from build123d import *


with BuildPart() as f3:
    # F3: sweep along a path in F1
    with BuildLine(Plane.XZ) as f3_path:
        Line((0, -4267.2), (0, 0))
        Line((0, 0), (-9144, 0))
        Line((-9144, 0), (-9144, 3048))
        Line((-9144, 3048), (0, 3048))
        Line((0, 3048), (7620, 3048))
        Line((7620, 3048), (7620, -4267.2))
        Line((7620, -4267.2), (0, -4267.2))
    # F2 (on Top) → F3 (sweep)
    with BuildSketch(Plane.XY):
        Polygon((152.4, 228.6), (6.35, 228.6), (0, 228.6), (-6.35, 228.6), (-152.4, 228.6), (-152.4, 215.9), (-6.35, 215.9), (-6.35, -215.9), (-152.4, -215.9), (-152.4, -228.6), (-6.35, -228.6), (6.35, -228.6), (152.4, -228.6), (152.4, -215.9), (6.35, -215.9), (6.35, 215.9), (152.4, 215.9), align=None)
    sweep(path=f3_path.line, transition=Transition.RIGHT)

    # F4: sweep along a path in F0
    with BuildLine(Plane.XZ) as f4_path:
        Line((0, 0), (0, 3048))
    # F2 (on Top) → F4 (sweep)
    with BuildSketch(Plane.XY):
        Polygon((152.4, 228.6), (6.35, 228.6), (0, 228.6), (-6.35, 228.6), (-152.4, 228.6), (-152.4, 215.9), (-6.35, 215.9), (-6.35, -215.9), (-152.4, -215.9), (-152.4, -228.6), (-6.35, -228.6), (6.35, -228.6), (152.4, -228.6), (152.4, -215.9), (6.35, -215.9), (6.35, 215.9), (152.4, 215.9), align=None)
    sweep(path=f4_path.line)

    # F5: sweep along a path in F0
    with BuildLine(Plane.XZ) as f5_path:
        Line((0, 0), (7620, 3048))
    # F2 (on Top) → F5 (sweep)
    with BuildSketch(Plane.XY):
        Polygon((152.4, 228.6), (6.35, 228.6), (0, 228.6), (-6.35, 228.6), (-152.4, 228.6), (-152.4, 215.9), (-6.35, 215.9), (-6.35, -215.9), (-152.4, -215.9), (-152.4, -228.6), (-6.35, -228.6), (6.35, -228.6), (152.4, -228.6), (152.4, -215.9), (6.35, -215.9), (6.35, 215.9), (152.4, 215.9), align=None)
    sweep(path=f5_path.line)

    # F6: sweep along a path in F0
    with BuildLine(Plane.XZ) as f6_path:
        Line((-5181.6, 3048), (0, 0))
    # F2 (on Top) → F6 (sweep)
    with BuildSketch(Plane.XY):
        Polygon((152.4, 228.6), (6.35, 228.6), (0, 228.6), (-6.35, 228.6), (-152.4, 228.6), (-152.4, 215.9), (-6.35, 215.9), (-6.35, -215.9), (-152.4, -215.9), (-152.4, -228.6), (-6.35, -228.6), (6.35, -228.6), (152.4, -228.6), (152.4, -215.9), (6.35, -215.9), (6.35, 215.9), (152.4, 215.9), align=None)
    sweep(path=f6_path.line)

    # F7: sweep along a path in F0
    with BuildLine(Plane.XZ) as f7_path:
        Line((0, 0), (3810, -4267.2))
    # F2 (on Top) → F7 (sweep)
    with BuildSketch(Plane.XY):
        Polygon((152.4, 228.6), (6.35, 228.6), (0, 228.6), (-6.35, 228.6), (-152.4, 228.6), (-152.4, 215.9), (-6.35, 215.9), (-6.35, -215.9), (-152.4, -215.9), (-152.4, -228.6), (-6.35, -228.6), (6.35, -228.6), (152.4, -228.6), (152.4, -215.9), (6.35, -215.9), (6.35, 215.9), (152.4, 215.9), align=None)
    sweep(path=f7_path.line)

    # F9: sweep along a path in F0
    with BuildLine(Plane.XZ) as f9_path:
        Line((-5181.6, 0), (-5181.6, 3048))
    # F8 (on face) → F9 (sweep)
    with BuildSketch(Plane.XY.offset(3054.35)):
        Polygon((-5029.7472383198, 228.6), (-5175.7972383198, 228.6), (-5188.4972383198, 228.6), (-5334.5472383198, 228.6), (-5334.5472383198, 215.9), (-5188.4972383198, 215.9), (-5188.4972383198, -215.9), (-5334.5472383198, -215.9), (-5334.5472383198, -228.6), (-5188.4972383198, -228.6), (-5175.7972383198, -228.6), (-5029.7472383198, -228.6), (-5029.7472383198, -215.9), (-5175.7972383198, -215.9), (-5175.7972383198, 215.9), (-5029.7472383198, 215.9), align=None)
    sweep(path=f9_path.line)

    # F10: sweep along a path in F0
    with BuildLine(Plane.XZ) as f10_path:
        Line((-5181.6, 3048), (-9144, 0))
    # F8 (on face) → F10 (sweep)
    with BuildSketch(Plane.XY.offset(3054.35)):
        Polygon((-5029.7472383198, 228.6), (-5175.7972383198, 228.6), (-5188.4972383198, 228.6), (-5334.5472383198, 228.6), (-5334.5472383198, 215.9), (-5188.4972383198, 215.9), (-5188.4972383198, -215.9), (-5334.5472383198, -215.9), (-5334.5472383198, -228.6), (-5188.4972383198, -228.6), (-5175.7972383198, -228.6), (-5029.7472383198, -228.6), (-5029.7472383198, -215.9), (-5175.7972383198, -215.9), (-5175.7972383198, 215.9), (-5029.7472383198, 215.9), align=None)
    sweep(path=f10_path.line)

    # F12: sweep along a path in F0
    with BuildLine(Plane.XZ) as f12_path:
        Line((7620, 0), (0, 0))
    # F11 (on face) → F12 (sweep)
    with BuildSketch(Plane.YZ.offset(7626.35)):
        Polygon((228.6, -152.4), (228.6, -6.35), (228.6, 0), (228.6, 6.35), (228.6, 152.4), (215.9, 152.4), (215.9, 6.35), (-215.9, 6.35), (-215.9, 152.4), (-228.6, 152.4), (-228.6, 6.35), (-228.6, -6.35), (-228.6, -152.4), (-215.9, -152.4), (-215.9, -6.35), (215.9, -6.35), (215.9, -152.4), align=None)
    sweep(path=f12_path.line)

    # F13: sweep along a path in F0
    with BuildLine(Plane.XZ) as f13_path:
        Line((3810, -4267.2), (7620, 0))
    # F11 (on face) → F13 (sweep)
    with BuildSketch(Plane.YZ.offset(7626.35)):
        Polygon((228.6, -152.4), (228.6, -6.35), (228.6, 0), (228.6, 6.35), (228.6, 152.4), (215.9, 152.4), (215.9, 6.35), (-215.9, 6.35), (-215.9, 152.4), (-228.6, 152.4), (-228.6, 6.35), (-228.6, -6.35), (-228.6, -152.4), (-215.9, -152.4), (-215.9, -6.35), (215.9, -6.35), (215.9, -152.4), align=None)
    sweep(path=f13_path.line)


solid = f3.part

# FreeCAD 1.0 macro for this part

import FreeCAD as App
import Part
import Sketcher
Q = App.Units.Quantity


def add_polygon(sketch, points):
    """Adds a closed chain of lines whose ends are joined by coincident constraints."""
    first, n = sketch.GeometryCount, len(points)
    for a, b in zip(points, points[1:] + points[:1]):
        sketch.addGeometry(Part.LineSegment(App.Vector(*a, 0), App.Vector(*b, 0)), False)
    for i in range(n):
        sketch.addConstraint(Sketcher.Constraint("Coincident", first + i, 2, first + (i + 1) % n, 1))

doc = App.newDocument("Part")
body = doc.addObject("PartDesign::Body", "Body")

# Sketch on XY plane
sketch1 = body.newObject("Sketcher::SketchObject", "Sketch")
sketch1.AttachmentSupport = (doc.getObject("XY_Plane"), [""])
sketch1.MapMode = "FlatFace"
add_polygon(sketch1, [(152.4, 228.6), (-152.4, 228.6), (-152.4, 215.9), (-6.35, 215.9), (-6.35, -215.9), (-152.4, -215.9), (-152.4, -228.6), (152.4, -228.6), (152.4, -215.9), (6.35, -215.9), (6.35, 215.9), (152.4, 215.9)])  # lines 0-11
sketch1.addConstraint([
    Sketcher.Constraint("Horizontal", 0),
    Sketcher.Constraint("Vertical", 1),
    Sketcher.Constraint("Horizontal", 2),
    Sketcher.Constraint("Vertical", 3),
    Sketcher.Constraint("Horizontal", 4),
    Sketcher.Constraint("Vertical", 5),
    Sketcher.Constraint("Horizontal", 6),
    Sketcher.Constraint("Vertical", 7),
    Sketcher.Constraint("Horizontal", 8),
    Sketcher.Constraint("Vertical", 9),
    Sketcher.Constraint("Horizontal", 10),
    Sketcher.Constraint("Vertical", 11),
    Sketcher.Constraint("Symmetric", 0, 2, 6, 2, -1, 1),
    Sketcher.Constraint("Symmetric", 2, 2, 8, 2, -1, 1),
    Sketcher.Constraint("Symmetric", 4, 2, 10, 2, -1, 1),
    Sketcher.Constraint("Symmetric", 4, 2, 7, 2, -2),
    Sketcher.Constraint("DistanceX", 0, 2, 0, 1, Q("12 in")),
    Sketcher.Constraint("DistanceY", 3, 2, 3, 1, Q("17 in")),
    Sketcher.Constraint("DistanceY", 1, 2, 1, 1, Q("0.5 in")),
    Sketcher.Constraint("DistanceX", 2, 1, 2, 2, Q("5.75 in")),
])

# Sketch on XZ plane
sketch2 = body.newObject("Sketcher::SketchObject", "Sketch001")
sketch2.AttachmentSupport = (doc.getObject("XZ_Plane"), [""])
sketch2.MapMode = "FlatFace"
add_polygon(sketch2, [(0, -4267.2), (0, 0), (-9144, 0), (-9144, 3048), (7620, 3048), (7620, -4267.2)])  # lines 0-5
sketch2.addConstraint([
    Sketcher.Constraint("Vertical", 0),
    Sketcher.Constraint("Horizontal", 1),
    Sketcher.Constraint("Vertical", 2),
    Sketcher.Constraint("Horizontal", 3),
    Sketcher.Constraint("Vertical", 4),
    Sketcher.Constraint("Horizontal", 5),
    Sketcher.Constraint("Coincident", 0, 2, -1, 1),
    Sketcher.Constraint("DistanceX", 1, 2, 1, 1, Q("360 in")),
    Sketcher.Constraint("DistanceX", 3, 1, 3, 2, Q("660 in")),
    Sketcher.Constraint("DistanceY", 0, 1, 0, 2, Q("168 in")),
    Sketcher.Constraint("DistanceY", 2, 1, 2, 2, Q("120 in")),
])
doc.recompute()

additivepipe = body.newObject("PartDesign::AdditivePipe", "AdditivePipe")
additivepipe.Profile = sketch1
additivepipe.Spine = (sketch2, ["Edge1", "Edge2", "Edge3", "Edge4", "Edge5", "Edge6"])
additivepipe.Transition = "Right corner"

# Sketch on XY plane
sketch3 = body.newObject("Sketcher::SketchObject", "Sketch002")
sketch3.AttachmentSupport = (doc.getObject("XY_Plane"), [""])
sketch3.MapMode = "FlatFace"
add_polygon(sketch3, [(152.4, 228.6), (-152.4, 228.6), (-152.4, 215.9), (-6.35, 215.9), (-6.35, -215.9), (-152.4, -215.9), (-152.4, -228.6), (152.4, -228.6), (152.4, -215.9), (6.35, -215.9), (6.35, 215.9), (152.4, 215.9)])  # lines 0-11
sketch3.addConstraint([
    Sketcher.Constraint("Horizontal", 0),
    Sketcher.Constraint("Vertical", 1),
    Sketcher.Constraint("Horizontal", 2),
    Sketcher.Constraint("Vertical", 3),
    Sketcher.Constraint("Horizontal", 4),
    Sketcher.Constraint("Vertical", 5),
    Sketcher.Constraint("Horizontal", 6),
    Sketcher.Constraint("Vertical", 7),
    Sketcher.Constraint("Horizontal", 8),
    Sketcher.Constraint("Vertical", 9),
    Sketcher.Constraint("Horizontal", 10),
    Sketcher.Constraint("Vertical", 11),
    Sketcher.Constraint("Symmetric", 0, 2, 6, 2, -1, 1),
    Sketcher.Constraint("Symmetric", 2, 2, 8, 2, -1, 1),
    Sketcher.Constraint("Symmetric", 4, 2, 10, 2, -1, 1),
    Sketcher.Constraint("Symmetric", 4, 2, 7, 2, -2),
    Sketcher.Constraint("DistanceX", 0, 2, 0, 1, Q("12 in")),
    Sketcher.Constraint("DistanceY", 3, 2, 3, 1, Q("17 in")),
    Sketcher.Constraint("DistanceY", 1, 2, 1, 1, Q("0.5 in")),
    Sketcher.Constraint("DistanceX", 2, 1, 2, 2, Q("5.75 in")),
])

# Sketch on XZ plane
sketch4 = body.newObject("Sketcher::SketchObject", "Sketch003")
sketch4.AttachmentSupport = (doc.getObject("XZ_Plane"), [""])
sketch4.MapMode = "FlatFace"
sketch4.addGeometry(Part.LineSegment(App.Vector(0, 0, 0), App.Vector(0, 3048, 0)), False)
sketch4.addConstraint([
    Sketcher.Constraint("Vertical", 0),
    Sketcher.Constraint("Coincident", 0, 1, -1, 1),
    Sketcher.Constraint("DistanceY", 0, 1, 0, 2, Q("120 in")),
])
doc.recompute()

additivepipe2 = body.newObject("PartDesign::AdditivePipe", "AdditivePipe001")
additivepipe2.Profile = sketch3
additivepipe2.Spine = (sketch4, ["Edge1"])

# Sketch on XY plane
sketch5 = body.newObject("Sketcher::SketchObject", "Sketch004")
sketch5.AttachmentSupport = (doc.getObject("XY_Plane"), [""])
sketch5.MapMode = "FlatFace"
add_polygon(sketch5, [(152.4, 228.6), (-152.4, 228.6), (-152.4, 215.9), (-6.35, 215.9), (-6.35, -215.9), (-152.4, -215.9), (-152.4, -228.6), (152.4, -228.6), (152.4, -215.9), (6.35, -215.9), (6.35, 215.9), (152.4, 215.9)])  # lines 0-11
sketch5.addConstraint([
    Sketcher.Constraint("Horizontal", 0),
    Sketcher.Constraint("Vertical", 1),
    Sketcher.Constraint("Horizontal", 2),
    Sketcher.Constraint("Vertical", 3),
    Sketcher.Constraint("Horizontal", 4),
    Sketcher.Constraint("Vertical", 5),
    Sketcher.Constraint("Horizontal", 6),
    Sketcher.Constraint("Vertical", 7),
    Sketcher.Constraint("Horizontal", 8),
    Sketcher.Constraint("Vertical", 9),
    Sketcher.Constraint("Horizontal", 10),
    Sketcher.Constraint("Vertical", 11),
    Sketcher.Constraint("Symmetric", 0, 2, 6, 2, -1, 1),
    Sketcher.Constraint("Symmetric", 2, 2, 8, 2, -1, 1),
    Sketcher.Constraint("Symmetric", 4, 2, 10, 2, -1, 1),
    Sketcher.Constraint("Symmetric", 4, 2, 7, 2, -2),
    Sketcher.Constraint("DistanceX", 0, 2, 0, 1, Q("12 in")),
    Sketcher.Constraint("DistanceY", 3, 2, 3, 1, Q("17 in")),
    Sketcher.Constraint("DistanceY", 1, 2, 1, 1, Q("0.5 in")),
    Sketcher.Constraint("DistanceX", 2, 1, 2, 2, Q("5.75 in")),
])

# Sketch on an angled plane
sketch6 = body.newObject("Sketcher::SketchObject", "Sketch005")
sketch6.Placement = App.Placement(App.Vector(0, 0, 0), App.Rotation(App.Vector(0.928476691, 0, 0.371390676), App.Vector(0, 1, 0), App.Vector(-0.371390676, 0, 0.928476691), "ZXY"))
sketch6.addGeometry(Part.LineSegment(App.Vector(0, 0, 0), App.Vector(8206.991166, 0, 0)), False)
sketch6.addConstraint([
    Sketcher.Constraint("Horizontal", 0),
    Sketcher.Constraint("Coincident", 0, 1, -1, 1),
    Sketcher.Constraint("DistanceX", 0, 1, 0, 2, 8206.991166),
])
doc.recompute()

additivepipe3 = body.newObject("PartDesign::AdditivePipe", "AdditivePipe002")
additivepipe3.Profile = sketch5
additivepipe3.Spine = (sketch6, ["Edge1"])

# Sketch on XY plane
sketch7 = body.newObject("Sketcher::SketchObject", "Sketch006")
sketch7.AttachmentSupport = (doc.getObject("XY_Plane"), [""])
sketch7.MapMode = "FlatFace"
add_polygon(sketch7, [(152.4, 228.6), (-152.4, 228.6), (-152.4, 215.9), (-6.35, 215.9), (-6.35, -215.9), (-152.4, -215.9), (-152.4, -228.6), (152.4, -228.6), (152.4, -215.9), (6.35, -215.9), (6.35, 215.9), (152.4, 215.9)])  # lines 0-11
sketch7.addConstraint([
    Sketcher.Constraint("Horizontal", 0),
    Sketcher.Constraint("Vertical", 1),
    Sketcher.Constraint("Horizontal", 2),
    Sketcher.Constraint("Vertical", 3),
    Sketcher.Constraint("Horizontal", 4),
    Sketcher.Constraint("Vertical", 5),
    Sketcher.Constraint("Horizontal", 6),
    Sketcher.Constraint("Vertical", 7),
    Sketcher.Constraint("Horizontal", 8),
    Sketcher.Constraint("Vertical", 9),
    Sketcher.Constraint("Horizontal", 10),
    Sketcher.Constraint("Vertical", 11),
    Sketcher.Constraint("Symmetric", 0, 2, 6, 2, -1, 1),
    Sketcher.Constraint("Symmetric", 2, 2, 8, 2, -1, 1),
    Sketcher.Constraint("Symmetric", 4, 2, 10, 2, -1, 1),
    Sketcher.Constraint("Symmetric", 4, 2, 7, 2, -2),
    Sketcher.Constraint("DistanceX", 0, 2, 0, 1, Q("12 in")),
    Sketcher.Constraint("DistanceY", 3, 2, 3, 1, Q("17 in")),
    Sketcher.Constraint("DistanceY", 1, 2, 1, 1, Q("0.5 in")),
    Sketcher.Constraint("DistanceX", 2, 1, 2, 2, Q("5.75 in")),
])

# Sketch on an angled plane
sketch8 = body.newObject("Sketcher::SketchObject", "Sketch007")
sketch8.Placement = App.Placement(App.Vector(0, 0, 0), App.Rotation(App.Vector(0.861934215, 0, -0.507020127), App.Vector(0, 1, 0), App.Vector(0.507020127, 0, 0.861934215), "ZXY"))
sketch8.addGeometry(Part.LineSegment(App.Vector(-6011.595676, 0, 0), App.Vector(0, 0, 0)), False)
sketch8.addConstraint([
    Sketcher.Constraint("Horizontal", 0),
    Sketcher.Constraint("Coincident", 0, 2, -1, 1),
    Sketcher.Constraint("DistanceX", 0, 1, 0, 2, 6011.595676),
])
doc.recompute()

additivepipe4 = body.newObject("PartDesign::AdditivePipe", "AdditivePipe003")
additivepipe4.Profile = sketch7
additivepipe4.Spine = (sketch8, ["Edge1"])

# Sketch on XY plane
sketch9 = body.newObject("Sketcher::SketchObject", "Sketch008")
sketch9.AttachmentSupport = (doc.getObject("XY_Plane"), [""])
sketch9.MapMode = "FlatFace"
add_polygon(sketch9, [(152.4, 228.6), (-152.4, 228.6), (-152.4, 215.9), (-6.35, 215.9), (-6.35, -215.9), (-152.4, -215.9), (-152.4, -228.6), (152.4, -228.6), (152.4, -215.9), (6.35, -215.9), (6.35, 215.9), (152.4, 215.9)])  # lines 0-11
sketch9.addConstraint([
    Sketcher.Constraint("Horizontal", 0),
    Sketcher.Constraint("Vertical", 1),
    Sketcher.Constraint("Horizontal", 2),
    Sketcher.Constraint("Vertical", 3),
    Sketcher.Constraint("Horizontal", 4),
    Sketcher.Constraint("Vertical", 5),
    Sketcher.Constraint("Horizontal", 6),
    Sketcher.Constraint("Vertical", 7),
    Sketcher.Constraint("Horizontal", 8),
    Sketcher.Constraint("Vertical", 9),
    Sketcher.Constraint("Horizontal", 10),
    Sketcher.Constraint("Vertical", 11),
    Sketcher.Constraint("Symmetric", 0, 2, 6, 2, -1, 1),
    Sketcher.Constraint("Symmetric", 2, 2, 8, 2, -1, 1),
    Sketcher.Constraint("Symmetric", 4, 2, 10, 2, -1, 1),
    Sketcher.Constraint("Symmetric", 4, 2, 7, 2, -2),
    Sketcher.Constraint("DistanceX", 0, 2, 0, 1, Q("12 in")),
    Sketcher.Constraint("DistanceY", 3, 2, 3, 1, Q("17 in")),
    Sketcher.Constraint("DistanceY", 1, 2, 1, 1, Q("0.5 in")),
    Sketcher.Constraint("DistanceX", 2, 1, 2, 2, Q("5.75 in")),
])

# Sketch on an angled plane
sketch10 = body.newObject("Sketcher::SketchObject", "Sketch009")
sketch10.Placement = App.Placement(App.Vector(0, 0, 0), App.Rotation(App.Vector(0.666015769, 0, -0.745937662), App.Vector(0, 1, 0), App.Vector(0.745937662, 0, 0.666015769), "ZXY"))
sketch10.addGeometry(Part.LineSegment(App.Vector(0, 0, 0), App.Vector(5720.585272, 0, 0)), False)
sketch10.addConstraint([
    Sketcher.Constraint("Horizontal", 0),
    Sketcher.Constraint("Coincident", 0, 1, -1, 1),
    Sketcher.Constraint("DistanceX", 0, 1, 0, 2, 5720.585272),
])
doc.recompute()

additivepipe5 = body.newObject("PartDesign::AdditivePipe", "AdditivePipe004")
additivepipe5.Profile = sketch9
additivepipe5.Spine = (sketch10, ["Edge1"])

# Sketch on XY plane
sketch11 = body.newObject("Sketcher::SketchObject", "Sketch010")
sketch11.AttachmentSupport = (doc.getObject("XY_Plane"), [""])
sketch11.MapMode = "FlatFace"
sketch11.AttachmentOffset = App.Placement(App.Vector(0, 0, 120.25 * 25.4), App.Rotation())
add_polygon(sketch11, [(-5029.747238, 228.6), (-5334.547238, 228.6), (-5334.547238, 215.9), (-5188.497238, 215.9), (-5188.497238, -215.9), (-5334.547238, -215.9), (-5334.547238, -228.6), (-5029.747238, -228.6), (-5029.747238, -215.9), (-5175.797238, -215.9), (-5175.797238, 215.9), (-5029.747238, 215.9)])  # lines 0-11
sketch11.addConstraint([
    Sketcher.Constraint("Horizontal", 0),
    Sketcher.Constraint("Vertical", 1),
    Sketcher.Constraint("Horizontal", 2),
    Sketcher.Constraint("Vertical", 3),
    Sketcher.Constraint("Horizontal", 4),
    Sketcher.Constraint("Vertical", 5),
    Sketcher.Constraint("Horizontal", 6),
    Sketcher.Constraint("Vertical", 7),
    Sketcher.Constraint("Horizontal", 8),
    Sketcher.Constraint("Vertical", 9),
    Sketcher.Constraint("Horizontal", 10),
    Sketcher.Constraint("Vertical", 11),
    Sketcher.Constraint("Symmetric", 1, 2, 4, 2, -1),
    Sketcher.Constraint("Symmetric", 7, 2, 10, 2, -1),
    Sketcher.Constraint("Horizontal", 4, 2, 7, 2),
    Sketcher.Constraint("Equal", 4, 8),
    Sketcher.Constraint("Equal", 1, 5),
    Sketcher.Constraint("DistanceX", 0, 2, 0, 1, Q("12 in")),
    Sketcher.Constraint("DistanceY", 3, 2, 3, 1, Q("17 in")),
    Sketcher.Constraint("DistanceY", 1, 2, 1, 1, Q("0.5 in")),
    Sketcher.Constraint("DistanceX", 2, 1, 2, 2, Q("5.75 in")),
    Sketcher.Constraint("DistanceX", 0, 2, -1, 1, 5334.547238),
])

# Sketch on XZ plane
sketch12 = body.newObject("Sketcher::SketchObject", "Sketch011")
sketch12.AttachmentSupport = (doc.getObject("XZ_Plane"), [""])
sketch12.MapMode = "FlatFace"
sketch12.addGeometry(Part.LineSegment(App.Vector(-5181.6, 0, 0), App.Vector(-5181.6, 3048, 0)), False)
sketch12.addConstraint([
    Sketcher.Constraint("Vertical", 0),
    Sketcher.Constraint("PointOnObject", 0, 1, -1),
    Sketcher.Constraint("DistanceY", 0, 1, 0, 2, Q("120 in")),
    Sketcher.Constraint("DistanceX", 0, 1, -1, 1, Q("204 in")),
])
doc.recompute()

additivepipe6 = body.newObject("PartDesign::AdditivePipe", "AdditivePipe005")
additivepipe6.Profile = sketch11
additivepipe6.Spine = (sketch12, ["Edge1"])

# Sketch on XY plane
sketch13 = body.newObject("Sketcher::SketchObject", "Sketch012")
sketch13.AttachmentSupport = (doc.getObject("XY_Plane"), [""])
sketch13.MapMode = "FlatFace"
sketch13.AttachmentOffset = App.Placement(App.Vector(0, 0, 120.25 * 25.4), App.Rotation())
add_polygon(sketch13, [(-5029.747238, 228.6), (-5334.547238, 228.6), (-5334.547238, 215.9), (-5188.497238, 215.9), (-5188.497238, -215.9), (-5334.547238, -215.9), (-5334.547238, -228.6), (-5029.747238, -228.6), (-5029.747238, -215.9), (-5175.797238, -215.9), (-5175.797238, 215.9), (-5029.747238, 215.9)])  # lines 0-11
sketch13.addConstraint([
    Sketcher.Constraint("Horizontal", 0),
    Sketcher.Constraint("Vertical", 1),
    Sketcher.Constraint("Horizontal", 2),
    Sketcher.Constraint("Vertical", 3),
    Sketcher.Constraint("Horizontal", 4),
    Sketcher.Constraint("Vertical", 5),
    Sketcher.Constraint("Horizontal", 6),
    Sketcher.Constraint("Vertical", 7),
    Sketcher.Constraint("Horizontal", 8),
    Sketcher.Constraint("Vertical", 9),
    Sketcher.Constraint("Horizontal", 10),
    Sketcher.Constraint("Vertical", 11),
    Sketcher.Constraint("Symmetric", 1, 2, 4, 2, -1),
    Sketcher.Constraint("Symmetric", 7, 2, 10, 2, -1),
    Sketcher.Constraint("Horizontal", 4, 2, 7, 2),
    Sketcher.Constraint("Equal", 4, 8),
    Sketcher.Constraint("Equal", 1, 5),
    Sketcher.Constraint("DistanceX", 0, 2, 0, 1, Q("12 in")),
    Sketcher.Constraint("DistanceY", 3, 2, 3, 1, Q("17 in")),
    Sketcher.Constraint("DistanceY", 1, 2, 1, 1, Q("0.5 in")),
    Sketcher.Constraint("DistanceX", 2, 1, 2, 2, Q("5.75 in")),
    Sketcher.Constraint("DistanceX", 0, 2, -1, 1, 5334.547238),
])

# Sketch on an angled plane
sketch14 = body.newObject("Sketcher::SketchObject", "Sketch013")
sketch14.Placement = App.Placement(App.Vector(-3399.256506, 0, 4419.033457), App.Rotation(App.Vector(-0.792623989, 0, -0.609710761), App.Vector(0, 1, 0), App.Vector(0.609710761, 0, -0.792623989), "ZXY"))
sketch14.addGeometry(Part.LineSegment(App.Vector(2248.662063, 0, 0), App.Vector(7247.753756, 0, 0)), False)
sketch14.addConstraint([
    Sketcher.Constraint("Horizontal", 0),
    Sketcher.Constraint("PointOnObject", 0, 1, -1),
    Sketcher.Constraint("DistanceX", 0, 1, 0, 2, 4999.091694),
    Sketcher.Constraint("DistanceX", -1, 1, 0, 1, 2248.662063),
])
doc.recompute()

additivepipe7 = body.newObject("PartDesign::AdditivePipe", "AdditivePipe006")
additivepipe7.Profile = sketch13
additivepipe7.Spine = (sketch14, ["Edge1"])

# Sketch on YZ plane
sketch15 = body.newObject("Sketcher::SketchObject", "Sketch014")
sketch15.AttachmentSupport = (doc.getObject("YZ_Plane"), [""])
sketch15.MapMode = "FlatFace"
sketch15.AttachmentOffset = App.Placement(App.Vector(0, 0, 300.25 * 25.4), App.Rotation())
add_polygon(sketch15, [(228.6, -152.4), (228.6, 152.4), (215.9, 152.4), (215.9, 6.35), (-215.9, 6.35), (-215.9, 152.4), (-228.6, 152.4), (-228.6, -152.4), (-215.9, -152.4), (-215.9, -6.35), (215.9, -6.35), (215.9, -152.4)])  # lines 0-11
sketch15.addConstraint([
    Sketcher.Constraint("Vertical", 0),
    Sketcher.Constraint("Horizontal", 1),
    Sketcher.Constraint("Vertical", 2),
    Sketcher.Constraint("Horizontal", 3),
    Sketcher.Constraint("Vertical", 4),
    Sketcher.Constraint("Horizontal", 5),
    Sketcher.Constraint("Vertical", 6),
    Sketcher.Constraint("Horizontal", 7),
    Sketcher.Constraint("Vertical", 8),
    Sketcher.Constraint("Horizontal", 9),
    Sketcher.Constraint("Vertical", 10),
    Sketcher.Constraint("Horizontal", 11),
    Sketcher.Constraint("Symmetric", 0, 2, 6, 2, -1, 1),
    Sketcher.Constraint("Symmetric", 2, 2, 8, 2, -1, 1),
    Sketcher.Constraint("Symmetric", 4, 2, 10, 2, -1, 1),
    Sketcher.Constraint("Symmetric", 1, 2, 4, 2, -2),
    Sketcher.Constraint("DistanceX", 3, 2, 3, 1, Q("17 in")),
    Sketcher.Constraint("DistanceY", 0, 1, 0, 2, Q("12 in")),
    Sketcher.Constraint("DistanceX", 1, 2, 1, 1, Q("0.5 in")),
    Sketcher.Constraint("DistanceY", 2, 2, 2, 1, Q("5.75 in")),
])

# Sketch on XY plane
sketch16 = body.newObject("Sketcher::SketchObject", "Sketch015")
sketch16.AttachmentSupport = (doc.getObject("XY_Plane"), [""])
sketch16.MapMode = "FlatFace"
sketch16.addGeometry(Part.LineSegment(App.Vector(7620, 0, 0), App.Vector(0, 0, 0)), False)
sketch16.addConstraint([
    Sketcher.Constraint("Horizontal", 0),
    Sketcher.Constraint("Coincident", 0, 2, -1, 1),
    Sketcher.Constraint("DistanceX", 0, 2, 0, 1, Q("300 in")),
])
doc.recompute()

additivepipe8 = body.newObject("PartDesign::AdditivePipe", "AdditivePipe007")
additivepipe8.Profile = sketch15
additivepipe8.Spine = (sketch16, ["Edge1"])

# Sketch on YZ plane
sketch17 = body.newObject("Sketcher::SketchObject", "Sketch016")
sketch17.AttachmentSupport = (doc.getObject("YZ_Plane"), [""])
sketch17.MapMode = "FlatFace"
sketch17.AttachmentOffset = App.Placement(App.Vector(0, 0, 300.25 * 25.4), App.Rotation())
add_polygon(sketch17, [(228.6, -152.4), (228.6, 152.4), (215.9, 152.4), (215.9, 6.35), (-215.9, 6.35), (-215.9, 152.4), (-228.6, 152.4), (-228.6, -152.4), (-215.9, -152.4), (-215.9, -6.35), (215.9, -6.35), (215.9, -152.4)])  # lines 0-11
sketch17.addConstraint([
    Sketcher.Constraint("Vertical", 0),
    Sketcher.Constraint("Horizontal", 1),
    Sketcher.Constraint("Vertical", 2),
    Sketcher.Constraint("Horizontal", 3),
    Sketcher.Constraint("Vertical", 4),
    Sketcher.Constraint("Horizontal", 5),
    Sketcher.Constraint("Vertical", 6),
    Sketcher.Constraint("Horizontal", 7),
    Sketcher.Constraint("Vertical", 8),
    Sketcher.Constraint("Horizontal", 9),
    Sketcher.Constraint("Vertical", 10),
    Sketcher.Constraint("Horizontal", 11),
    Sketcher.Constraint("Symmetric", 0, 2, 6, 2, -1, 1),
    Sketcher.Constraint("Symmetric", 2, 2, 8, 2, -1, 1),
    Sketcher.Constraint("Symmetric", 4, 2, 10, 2, -1, 1),
    Sketcher.Constraint("Symmetric", 1, 2, 4, 2, -2),
    Sketcher.Constraint("DistanceX", 3, 2, 3, 1, Q("17 in")),
    Sketcher.Constraint("DistanceY", 0, 1, 0, 2, Q("12 in")),
    Sketcher.Constraint("DistanceX", 1, 2, 1, 1, Q("0.5 in")),
    Sketcher.Constraint("DistanceY", 2, 2, 2, 1, Q("5.75 in")),
])

# Sketch on an angled plane
sketch18 = body.newObject("Sketcher::SketchObject", "Sketch017")
sketch18.Placement = App.Placement(App.Vector(4239.943222, 0, -3785.663591), App.Rotation(App.Vector(0.666015769, 0, 0.745937662), App.Vector(0, 1, 0), App.Vector(-0.745937662, 0, 0.666015769), "ZXY"))
sketch18.addGeometry(Part.LineSegment(App.Vector(-645.545109, 0, 0), App.Vector(5075.040163, 0, 0)), False)
sketch18.addConstraint([
    Sketcher.Constraint("Horizontal", 0),
    Sketcher.Constraint("PointOnObject", 0, 1, -1),
    Sketcher.Constraint("DistanceX", 0, 1, 0, 2, 5720.585272),
    Sketcher.Constraint("DistanceX", 0, 1, -1, 1, 645.545109),
])
doc.recompute()

additivepipe9 = body.newObject("PartDesign::AdditivePipe", "AdditivePipe008")
additivepipe9.Profile = sketch17
additivepipe9.Spine = (sketch18, ["Edge1"])

doc.recompute()
